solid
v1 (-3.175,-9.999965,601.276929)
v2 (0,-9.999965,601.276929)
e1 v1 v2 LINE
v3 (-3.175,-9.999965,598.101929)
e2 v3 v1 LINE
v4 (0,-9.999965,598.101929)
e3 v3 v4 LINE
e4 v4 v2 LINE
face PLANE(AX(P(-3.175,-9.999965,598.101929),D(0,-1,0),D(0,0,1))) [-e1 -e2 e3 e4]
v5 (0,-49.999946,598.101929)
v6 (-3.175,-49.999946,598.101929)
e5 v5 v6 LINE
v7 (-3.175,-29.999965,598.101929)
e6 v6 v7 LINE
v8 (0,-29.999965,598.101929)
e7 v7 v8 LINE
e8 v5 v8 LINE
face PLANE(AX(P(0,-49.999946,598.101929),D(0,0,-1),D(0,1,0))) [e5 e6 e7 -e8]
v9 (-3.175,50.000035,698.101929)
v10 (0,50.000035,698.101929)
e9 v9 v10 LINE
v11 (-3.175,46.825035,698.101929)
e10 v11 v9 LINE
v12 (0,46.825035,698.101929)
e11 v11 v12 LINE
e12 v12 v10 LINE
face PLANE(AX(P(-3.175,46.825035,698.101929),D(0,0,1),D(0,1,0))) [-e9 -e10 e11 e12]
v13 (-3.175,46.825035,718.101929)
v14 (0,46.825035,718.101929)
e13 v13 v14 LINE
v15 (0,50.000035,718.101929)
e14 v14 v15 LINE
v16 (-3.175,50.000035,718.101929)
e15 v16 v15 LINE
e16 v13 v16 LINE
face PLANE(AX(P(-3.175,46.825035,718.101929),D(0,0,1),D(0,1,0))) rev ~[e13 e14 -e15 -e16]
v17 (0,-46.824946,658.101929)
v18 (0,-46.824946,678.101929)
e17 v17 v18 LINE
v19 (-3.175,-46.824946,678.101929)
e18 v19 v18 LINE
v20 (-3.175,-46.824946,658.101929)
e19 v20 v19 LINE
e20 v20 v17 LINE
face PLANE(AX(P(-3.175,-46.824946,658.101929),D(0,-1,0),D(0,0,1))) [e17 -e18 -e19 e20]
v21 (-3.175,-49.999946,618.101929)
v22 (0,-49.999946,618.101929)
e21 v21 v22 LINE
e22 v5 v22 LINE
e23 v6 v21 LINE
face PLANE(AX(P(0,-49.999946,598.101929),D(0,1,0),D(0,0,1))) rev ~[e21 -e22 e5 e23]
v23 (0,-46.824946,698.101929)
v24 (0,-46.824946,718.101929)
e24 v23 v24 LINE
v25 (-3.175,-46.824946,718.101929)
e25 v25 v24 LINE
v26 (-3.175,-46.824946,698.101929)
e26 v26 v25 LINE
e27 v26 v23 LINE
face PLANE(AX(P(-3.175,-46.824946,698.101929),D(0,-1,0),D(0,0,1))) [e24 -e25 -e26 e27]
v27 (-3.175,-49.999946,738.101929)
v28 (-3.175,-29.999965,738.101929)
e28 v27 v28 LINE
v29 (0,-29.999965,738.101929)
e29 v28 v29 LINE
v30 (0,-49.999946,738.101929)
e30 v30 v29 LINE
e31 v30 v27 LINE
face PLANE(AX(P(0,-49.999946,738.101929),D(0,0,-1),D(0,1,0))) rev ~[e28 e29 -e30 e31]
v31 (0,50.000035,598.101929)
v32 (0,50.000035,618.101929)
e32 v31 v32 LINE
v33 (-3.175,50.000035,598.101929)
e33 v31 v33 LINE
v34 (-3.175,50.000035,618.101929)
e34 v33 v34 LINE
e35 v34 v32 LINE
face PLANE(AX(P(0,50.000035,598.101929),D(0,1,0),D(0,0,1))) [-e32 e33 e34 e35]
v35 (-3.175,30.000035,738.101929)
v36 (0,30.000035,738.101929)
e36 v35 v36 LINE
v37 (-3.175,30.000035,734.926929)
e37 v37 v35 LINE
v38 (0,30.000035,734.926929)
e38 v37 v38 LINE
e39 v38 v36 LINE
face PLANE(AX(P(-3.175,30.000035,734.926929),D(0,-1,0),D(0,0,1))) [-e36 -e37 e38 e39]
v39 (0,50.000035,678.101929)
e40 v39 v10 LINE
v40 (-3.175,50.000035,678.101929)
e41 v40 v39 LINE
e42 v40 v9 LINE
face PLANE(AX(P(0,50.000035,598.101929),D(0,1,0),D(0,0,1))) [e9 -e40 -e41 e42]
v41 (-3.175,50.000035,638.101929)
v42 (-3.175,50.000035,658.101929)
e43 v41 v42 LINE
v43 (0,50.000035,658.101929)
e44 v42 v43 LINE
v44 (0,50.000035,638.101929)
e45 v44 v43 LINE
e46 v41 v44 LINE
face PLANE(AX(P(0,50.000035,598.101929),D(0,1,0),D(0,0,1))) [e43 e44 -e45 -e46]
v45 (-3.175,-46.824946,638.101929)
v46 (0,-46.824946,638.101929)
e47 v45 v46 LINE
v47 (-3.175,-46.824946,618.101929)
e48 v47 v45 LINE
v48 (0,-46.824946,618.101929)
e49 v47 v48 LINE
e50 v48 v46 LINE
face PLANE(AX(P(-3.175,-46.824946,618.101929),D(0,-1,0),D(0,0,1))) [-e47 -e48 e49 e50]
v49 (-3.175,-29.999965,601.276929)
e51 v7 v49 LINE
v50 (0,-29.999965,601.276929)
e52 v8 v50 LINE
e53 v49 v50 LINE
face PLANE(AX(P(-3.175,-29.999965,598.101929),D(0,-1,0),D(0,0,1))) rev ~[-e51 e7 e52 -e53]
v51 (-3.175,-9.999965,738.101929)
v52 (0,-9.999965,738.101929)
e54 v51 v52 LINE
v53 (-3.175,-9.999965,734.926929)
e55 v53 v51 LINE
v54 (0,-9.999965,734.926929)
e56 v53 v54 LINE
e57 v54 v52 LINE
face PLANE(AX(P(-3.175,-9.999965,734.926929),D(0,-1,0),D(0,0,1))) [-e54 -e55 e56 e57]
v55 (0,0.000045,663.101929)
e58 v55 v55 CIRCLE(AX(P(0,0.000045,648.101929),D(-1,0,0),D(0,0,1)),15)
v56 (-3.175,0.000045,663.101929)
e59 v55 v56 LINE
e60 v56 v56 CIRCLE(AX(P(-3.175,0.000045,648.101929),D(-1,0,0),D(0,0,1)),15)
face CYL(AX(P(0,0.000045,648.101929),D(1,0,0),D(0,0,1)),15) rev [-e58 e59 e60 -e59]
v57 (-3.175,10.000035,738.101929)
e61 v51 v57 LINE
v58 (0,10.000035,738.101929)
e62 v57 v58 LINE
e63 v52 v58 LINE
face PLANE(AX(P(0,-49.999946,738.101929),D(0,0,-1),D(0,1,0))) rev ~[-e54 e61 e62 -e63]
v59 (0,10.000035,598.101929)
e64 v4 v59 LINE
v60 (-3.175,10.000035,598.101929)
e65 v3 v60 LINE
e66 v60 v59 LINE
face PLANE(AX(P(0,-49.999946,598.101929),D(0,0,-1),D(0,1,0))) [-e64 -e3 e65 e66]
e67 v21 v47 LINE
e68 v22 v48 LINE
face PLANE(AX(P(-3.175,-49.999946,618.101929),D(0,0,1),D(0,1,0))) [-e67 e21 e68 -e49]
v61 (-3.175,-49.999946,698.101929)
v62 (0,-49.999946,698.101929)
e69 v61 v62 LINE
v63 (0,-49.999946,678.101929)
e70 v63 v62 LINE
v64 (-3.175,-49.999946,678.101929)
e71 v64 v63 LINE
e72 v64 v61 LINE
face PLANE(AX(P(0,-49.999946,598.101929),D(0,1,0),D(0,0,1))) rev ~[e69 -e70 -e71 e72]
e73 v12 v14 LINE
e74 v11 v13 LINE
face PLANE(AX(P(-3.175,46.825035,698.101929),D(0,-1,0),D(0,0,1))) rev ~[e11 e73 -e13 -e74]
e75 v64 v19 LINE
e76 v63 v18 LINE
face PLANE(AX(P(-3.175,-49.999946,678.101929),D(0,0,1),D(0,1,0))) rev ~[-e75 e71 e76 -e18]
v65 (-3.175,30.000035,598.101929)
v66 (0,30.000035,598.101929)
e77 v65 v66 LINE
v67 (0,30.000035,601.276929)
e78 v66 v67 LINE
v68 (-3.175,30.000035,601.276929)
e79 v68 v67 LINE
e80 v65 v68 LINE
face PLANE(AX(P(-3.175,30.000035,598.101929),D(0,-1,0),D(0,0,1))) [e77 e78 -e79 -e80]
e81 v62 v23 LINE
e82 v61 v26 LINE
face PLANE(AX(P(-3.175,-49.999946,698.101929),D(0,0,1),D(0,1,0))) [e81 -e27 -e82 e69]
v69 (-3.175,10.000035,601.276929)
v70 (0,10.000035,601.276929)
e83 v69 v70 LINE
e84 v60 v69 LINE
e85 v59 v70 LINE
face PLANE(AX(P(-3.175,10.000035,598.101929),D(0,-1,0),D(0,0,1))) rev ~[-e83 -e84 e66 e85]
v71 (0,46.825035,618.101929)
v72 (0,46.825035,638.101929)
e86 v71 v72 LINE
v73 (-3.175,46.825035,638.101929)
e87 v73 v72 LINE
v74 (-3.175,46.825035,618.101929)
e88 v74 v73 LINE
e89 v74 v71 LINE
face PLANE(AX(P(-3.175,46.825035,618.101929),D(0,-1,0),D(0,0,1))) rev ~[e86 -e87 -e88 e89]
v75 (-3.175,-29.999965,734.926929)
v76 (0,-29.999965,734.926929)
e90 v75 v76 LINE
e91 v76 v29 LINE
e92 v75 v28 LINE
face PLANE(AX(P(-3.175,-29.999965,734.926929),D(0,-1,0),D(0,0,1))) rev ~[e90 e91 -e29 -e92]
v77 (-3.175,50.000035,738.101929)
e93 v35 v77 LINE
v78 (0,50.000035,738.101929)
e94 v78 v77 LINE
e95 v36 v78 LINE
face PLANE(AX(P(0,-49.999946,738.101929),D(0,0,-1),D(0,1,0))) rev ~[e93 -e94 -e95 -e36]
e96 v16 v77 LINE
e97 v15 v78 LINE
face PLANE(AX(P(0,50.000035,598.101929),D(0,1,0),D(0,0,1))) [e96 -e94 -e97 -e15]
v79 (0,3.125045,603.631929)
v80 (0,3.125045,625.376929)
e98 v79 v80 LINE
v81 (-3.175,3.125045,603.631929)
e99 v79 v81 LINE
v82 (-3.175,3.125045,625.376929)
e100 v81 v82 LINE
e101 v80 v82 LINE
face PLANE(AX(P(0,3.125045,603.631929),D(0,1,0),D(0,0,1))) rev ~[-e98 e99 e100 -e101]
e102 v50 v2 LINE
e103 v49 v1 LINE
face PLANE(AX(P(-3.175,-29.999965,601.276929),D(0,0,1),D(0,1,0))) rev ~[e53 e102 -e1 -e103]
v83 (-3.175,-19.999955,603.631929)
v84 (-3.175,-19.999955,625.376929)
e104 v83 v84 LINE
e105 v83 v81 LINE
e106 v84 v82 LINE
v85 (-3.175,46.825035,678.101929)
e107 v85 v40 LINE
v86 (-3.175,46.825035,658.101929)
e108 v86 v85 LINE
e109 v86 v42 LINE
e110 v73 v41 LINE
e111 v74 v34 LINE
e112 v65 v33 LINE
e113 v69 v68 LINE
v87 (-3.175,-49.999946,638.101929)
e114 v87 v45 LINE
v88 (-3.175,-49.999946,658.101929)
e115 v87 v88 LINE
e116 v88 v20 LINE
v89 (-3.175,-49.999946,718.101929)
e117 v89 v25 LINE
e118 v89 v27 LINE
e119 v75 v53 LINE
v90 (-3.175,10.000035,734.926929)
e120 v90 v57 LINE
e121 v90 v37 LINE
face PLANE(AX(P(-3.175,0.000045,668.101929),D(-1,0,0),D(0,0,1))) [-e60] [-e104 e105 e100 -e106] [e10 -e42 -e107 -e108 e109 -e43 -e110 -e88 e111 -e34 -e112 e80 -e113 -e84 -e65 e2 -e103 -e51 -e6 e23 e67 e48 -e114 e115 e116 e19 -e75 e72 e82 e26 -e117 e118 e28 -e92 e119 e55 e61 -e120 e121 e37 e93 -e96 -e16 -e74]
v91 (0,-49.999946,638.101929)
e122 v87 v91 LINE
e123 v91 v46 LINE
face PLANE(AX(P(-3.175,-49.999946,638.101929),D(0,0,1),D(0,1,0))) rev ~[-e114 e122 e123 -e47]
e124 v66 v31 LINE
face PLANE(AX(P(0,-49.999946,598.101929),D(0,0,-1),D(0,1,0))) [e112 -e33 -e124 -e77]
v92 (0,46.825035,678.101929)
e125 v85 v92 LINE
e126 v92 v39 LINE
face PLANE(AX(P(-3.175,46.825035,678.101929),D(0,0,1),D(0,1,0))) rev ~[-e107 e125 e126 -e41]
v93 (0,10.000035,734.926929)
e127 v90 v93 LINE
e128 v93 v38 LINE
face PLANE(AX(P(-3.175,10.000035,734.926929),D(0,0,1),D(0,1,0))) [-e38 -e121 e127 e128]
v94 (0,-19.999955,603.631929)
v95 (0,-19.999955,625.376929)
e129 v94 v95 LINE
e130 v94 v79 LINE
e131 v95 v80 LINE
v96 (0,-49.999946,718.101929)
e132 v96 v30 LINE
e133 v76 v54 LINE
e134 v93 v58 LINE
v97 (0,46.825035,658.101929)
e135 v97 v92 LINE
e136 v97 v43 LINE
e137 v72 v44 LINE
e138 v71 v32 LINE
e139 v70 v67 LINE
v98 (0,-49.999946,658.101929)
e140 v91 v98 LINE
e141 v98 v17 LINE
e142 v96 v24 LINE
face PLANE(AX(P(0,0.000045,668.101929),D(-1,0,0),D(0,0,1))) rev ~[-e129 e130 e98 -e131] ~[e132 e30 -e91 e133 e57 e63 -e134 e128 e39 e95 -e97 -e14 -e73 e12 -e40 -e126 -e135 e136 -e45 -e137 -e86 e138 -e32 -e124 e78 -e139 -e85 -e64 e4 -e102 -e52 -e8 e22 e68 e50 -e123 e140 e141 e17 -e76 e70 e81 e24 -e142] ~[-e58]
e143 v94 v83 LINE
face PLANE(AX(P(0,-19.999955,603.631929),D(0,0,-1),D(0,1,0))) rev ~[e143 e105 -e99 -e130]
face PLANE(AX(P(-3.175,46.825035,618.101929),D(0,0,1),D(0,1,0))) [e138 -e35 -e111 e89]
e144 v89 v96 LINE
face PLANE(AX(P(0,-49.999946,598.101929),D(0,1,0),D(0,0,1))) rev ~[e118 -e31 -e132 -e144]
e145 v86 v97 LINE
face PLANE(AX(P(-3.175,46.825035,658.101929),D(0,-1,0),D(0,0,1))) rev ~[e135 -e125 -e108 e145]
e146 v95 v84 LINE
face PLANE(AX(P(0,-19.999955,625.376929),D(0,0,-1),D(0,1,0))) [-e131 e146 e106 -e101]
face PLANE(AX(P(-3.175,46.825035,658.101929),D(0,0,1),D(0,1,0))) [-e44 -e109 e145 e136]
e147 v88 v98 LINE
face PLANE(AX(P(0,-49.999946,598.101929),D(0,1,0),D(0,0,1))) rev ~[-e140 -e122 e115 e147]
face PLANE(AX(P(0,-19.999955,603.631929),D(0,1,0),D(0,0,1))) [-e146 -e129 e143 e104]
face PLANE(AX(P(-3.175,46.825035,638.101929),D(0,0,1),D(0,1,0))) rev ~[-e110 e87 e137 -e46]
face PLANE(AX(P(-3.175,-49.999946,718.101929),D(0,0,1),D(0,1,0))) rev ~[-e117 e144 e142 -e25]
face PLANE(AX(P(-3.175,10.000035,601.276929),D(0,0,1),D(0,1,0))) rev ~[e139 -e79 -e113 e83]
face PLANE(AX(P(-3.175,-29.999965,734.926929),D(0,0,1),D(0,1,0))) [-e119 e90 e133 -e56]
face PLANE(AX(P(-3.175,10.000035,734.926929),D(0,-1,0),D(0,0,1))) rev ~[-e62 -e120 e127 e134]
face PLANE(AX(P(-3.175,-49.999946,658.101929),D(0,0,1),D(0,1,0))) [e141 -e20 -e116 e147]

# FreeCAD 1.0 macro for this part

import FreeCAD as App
import Part
import Sketcher
Q = App.Units.Quantity


def add_polygon(sketch, points):
    """Adds a closed chain of lines whose ends are joined by coincident constraints."""
    first, n = sketch.GeometryCount, len(points)
    for a, b in zip(points, points[1:] + points[:1]):
        sketch.addGeometry(Part.LineSegment(App.Vector(*a, 0), App.Vector(*b, 0)), False)
    for i in range(n):
        sketch.addConstraint(Sketcher.Constraint("Coincident", first + i, 2, first + (i + 1) % n, 1))

doc = App.newDocument("Part")
body = doc.addObject("PartDesign::Body", "Body")

sketch1 = body.newObject("Sketcher::SketchObject", "Sketch")
sketch1.AttachmentSupport = (doc.getObject("YZ_Plane"), [""])
sketch1.MapMode = "FlatFace"
add_polygon(sketch1, [(50, 598), (-50, 598), (-50, 738), (50, 738)])
add_polygon(sketch1, [(-20, 625), (-20, 604), (3, 604), (3, 625)])
sketch1.addGeometry(Part.Circle(App.Vector(0, 648, 0), App.Vector(0, 0, 1), 15), False)
sketch1.addConstraint([
    Sketcher.Constraint("Horizontal", 0),
    Sketcher.Constraint("Vertical", 1),
    Sketcher.Constraint("Horizontal", 2),
    Sketcher.Constraint("Vertical", 3),
    Sketcher.Constraint("Vertical", 4),
    Sketcher.Constraint("Horizontal", 5),
    Sketcher.Constraint("Vertical", 6),
    Sketcher.Constraint("Horizontal", 7),
    Sketcher.Constraint("Diameter", 8, Q("30 mm")),
    Sketcher.Constraint("DistanceY", 1, 1, 1, 2, Q("140 mm")),
    Sketcher.Constraint("DistanceY", 0, 2, 8, 3, Q("50 mm")),
    Sketcher.Constraint("DistanceX", 4, 2, 8, 3, Q("20 mm")),
    Sketcher.Constraint("DistanceX", 5, 1, 5, 2, Q("23.125 mm")),
    Sketcher.Constraint("DistanceY", 4, 2, 4, 1, Q("21.745 mm")),
    Sketcher.Constraint("DistanceY", 0, 2, 4, 2, Q("5.53 mm")),
    Sketcher.Constraint("DistanceX", 0, 2, 0, 1, Q("99.999981 mm")),
    Sketcher.Constraint("DistanceY", -1, 1, 8, 3, Q("648.101929 mm")),
    Sketcher.Constraint("DistanceX", 0, 2, 8, 3, Q("49.999991 mm")),
    Sketcher.Constraint("DistanceX", 0, 2, -1, 1, Q("49.999946 mm")),
])
pad1 = body.newObject("PartDesign::Pad", "Pad")
pad1.Profile = sketch1
pad1.Length = 3.175
pad1.Reversed = True

sketch2 = body.newObject("Sketcher::SketchObject", "Sketch001")
sketch2.AttachmentSupport = (doc.getObject("YZ_Plane"), [""])
sketch2.MapMode = "FlatFace"
sketch2.AttachmentOffset = App.Placement(App.Vector(0, 0, -3.175), App.Rotation())
add_polygon(sketch2, [(-10, 734.9), (-30, 734.9), (-30, 738.1), (-10, 738.1)])
add_polygon(sketch2, [(30, 734.9), (10, 734.9), (10, 738.1), (30, 738.1)])
add_polygon(sketch2, [(-10, 598.1), (-30, 598.1), (-30, 601.3), (-10, 601.3)])
add_polygon(sketch2, [(30, 598.1), (10, 598.1), (10, 601.3), (30, 601.3)])
add_polygon(sketch2, [(50, 658.1), (46.8, 658.1), (46.8, 678.1), (50, 678.1)])
add_polygon(sketch2, [(50, 698.1), (46.8, 698.1), (46.8, 718.1), (50, 718.1)])
add_polygon(sketch2, [(50, 618.1), (46.8, 618.1), (46.8, 638.1), (50, 638.1)])
add_polygon(sketch2, [(-46.8, 658.1), (-50, 658.1), (-50, 678.1), (-46.8, 678.1)])
add_polygon(sketch2, [(-46.8, 698.1), (-50, 698.1), (-50, 718.1), (-46.8, 718.1)])
add_polygon(sketch2, [(-46.8, 618.1), (-50, 618.1), (-50, 638.1), (-46.8, 638.1)])
sketch2.addConstraint([
    Sketcher.Constraint("Horizontal", 0),
    Sketcher.Constraint("Vertical", 1),
    Sketcher.Constraint("Horizontal", 2),
    Sketcher.Constraint("Vertical", 3),
    Sketcher.Constraint("Horizontal", 4),
    Sketcher.Constraint("Vertical", 5),
    Sketcher.Constraint("Horizontal", 6),
    Sketcher.Constraint("Vertical", 7),
    Sketcher.Constraint("Horizontal", 8),
    Sketcher.Constraint("Vertical", 9),
    Sketcher.Constraint("Horizontal", 10),
    Sketcher.Constraint("Vertical", 11),
    Sketcher.Constraint("Horizontal", 12),
    Sketcher.Constraint("Vertical", 13),
    Sketcher.Constraint("Horizontal", 14),
    Sketcher.Constraint("Vertical", 15),
    Sketcher.Constraint("Horizontal", 16),
    Sketcher.Constraint("Vertical", 17),
    Sketcher.Constraint("Horizontal", 18),
    Sketcher.Constraint("Vertical", 19),
    Sketcher.Constraint("Horizontal", 20),
    Sketcher.Constraint("Vertical", 21),
    Sketcher.Constraint("Horizontal", 22),
    Sketcher.Constraint("Vertical", 23),
    Sketcher.Constraint("Horizontal", 24),
    Sketcher.Constraint("Vertical", 25),
    Sketcher.Constraint("Horizontal", 26),
    Sketcher.Constraint("Vertical", 27),
    Sketcher.Constraint("Horizontal", 28),
    Sketcher.Constraint("Vertical", 29),
    Sketcher.Constraint("Horizontal", 30),
    Sketcher.Constraint("Vertical", 31),
    Sketcher.Constraint("Horizontal", 32),
    Sketcher.Constraint("Vertical", 33),
    Sketcher.Constraint("Horizontal", 34),
    Sketcher.Constraint("Vertical", 35),
    Sketcher.Constraint("Horizontal", 36),
    Sketcher.Constraint("Vertical", 37),
    Sketcher.Constraint("Horizontal", 38),
    Sketcher.Constraint("Vertical", 39),
    Sketcher.Constraint("Horizontal", 3, 2, 4, 2),
    Sketcher.Constraint("Horizontal", 2, 2, 5, 2),
    Sketcher.Constraint("Horizontal", 11, 2, 12, 2),
    Sketcher.Constraint("Horizontal", 10, 2, 13, 2),
    Sketcher.Constraint("Horizontal", 19, 2, 28, 2),
    Sketcher.Constraint("Horizontal", 18, 2, 29, 2),
    Sketcher.Constraint("Horizontal", 23, 2, 32, 2),
    Sketcher.Constraint("Horizontal", 22, 2, 33, 2),
    Sketcher.Constraint("Horizontal", 27, 2, 36, 2),
    Sketcher.Constraint("Horizontal", 26, 2, 37, 2),
    Sketcher.Constraint("Vertical", 1, 2, 8, 2),
    Sketcher.Constraint("Vertical", 3, 2, 10, 2),
    Sketcher.Constraint("Vertical", 5, 2, 12, 2),
    Sketcher.Constraint("Vertical", 7, 2, 14, 2),
    Sketcher.Constraint("Vertical", 17, 2, 20, 2),
    Sketcher.Constraint("Vertical", 19, 2, 22, 2),
    Sketcher.Constraint("Vertical", 21, 2, 24, 2),
    Sketcher.Constraint("Vertical", 23, 2, 26, 2),
    Sketcher.Constraint("Vertical", 29, 2, 32, 2),
    Sketcher.Constraint("Vertical", 31, 2, 34, 2),
    Sketcher.Constraint("Vertical", 33, 2, 36, 2),
    Sketcher.Constraint("Vertical", 35, 2, 38, 2),
    Sketcher.Constraint("Equal", 2, 4),
    Sketcher.Constraint("Equal", 26, 28),
    Sketcher.Constraint("Equal", 38, 1),
    Sketcher.Constraint("Equal", 7, 9),
    Sketcher.Constraint("Equal", 14, 17),
    Sketcher.Constraint("Equal", 19, 21),
    Sketcher.Constraint("Equal", 23, 25),
    Sketcher.Constraint("DistanceX", 0, 2, 0, 1, Q("20 mm")),
    Sketcher.Constraint("DistanceX", 3, 2, 4, 2, Q("20 mm")),
    Sketcher.Constraint("DistanceY", 8, 2, 1, 2, Q("140 mm")),
    Sketcher.Constraint("DistanceY", 15, 2, 16, 2, Q("60 mm")),
    Sketcher.Constraint("DistanceX", 7, 2, 18, 2, Q("20 mm")),
    Sketcher.Constraint("DistanceY", 17, 2, 20, 2, Q("20 mm")),
    Sketcher.Constraint("DistanceY", 15, 2, 24, 2, Q("20 mm")),
    Sketcher.Constraint("DistanceX", 16, 2, 16, 1, Q("3.175 mm")),
    Sketcher.Constraint("DistanceY", -1, 1, 0, 2, Q("734.926929 mm")),
    Sketcher.Constraint("DistanceX", 28, 2, 9, 2, Q("19.999981 mm")),
    Sketcher.Constraint("DistanceX", 0, 2, -1, 1, Q("29.999965 mm")),
])
pocket1 = body.newObject("PartDesign::Pocket", "Pocket")
pocket1.Profile = sketch2
pocket1.Length = 3.175
pocket1.Reversed = True

doc.recompute()
